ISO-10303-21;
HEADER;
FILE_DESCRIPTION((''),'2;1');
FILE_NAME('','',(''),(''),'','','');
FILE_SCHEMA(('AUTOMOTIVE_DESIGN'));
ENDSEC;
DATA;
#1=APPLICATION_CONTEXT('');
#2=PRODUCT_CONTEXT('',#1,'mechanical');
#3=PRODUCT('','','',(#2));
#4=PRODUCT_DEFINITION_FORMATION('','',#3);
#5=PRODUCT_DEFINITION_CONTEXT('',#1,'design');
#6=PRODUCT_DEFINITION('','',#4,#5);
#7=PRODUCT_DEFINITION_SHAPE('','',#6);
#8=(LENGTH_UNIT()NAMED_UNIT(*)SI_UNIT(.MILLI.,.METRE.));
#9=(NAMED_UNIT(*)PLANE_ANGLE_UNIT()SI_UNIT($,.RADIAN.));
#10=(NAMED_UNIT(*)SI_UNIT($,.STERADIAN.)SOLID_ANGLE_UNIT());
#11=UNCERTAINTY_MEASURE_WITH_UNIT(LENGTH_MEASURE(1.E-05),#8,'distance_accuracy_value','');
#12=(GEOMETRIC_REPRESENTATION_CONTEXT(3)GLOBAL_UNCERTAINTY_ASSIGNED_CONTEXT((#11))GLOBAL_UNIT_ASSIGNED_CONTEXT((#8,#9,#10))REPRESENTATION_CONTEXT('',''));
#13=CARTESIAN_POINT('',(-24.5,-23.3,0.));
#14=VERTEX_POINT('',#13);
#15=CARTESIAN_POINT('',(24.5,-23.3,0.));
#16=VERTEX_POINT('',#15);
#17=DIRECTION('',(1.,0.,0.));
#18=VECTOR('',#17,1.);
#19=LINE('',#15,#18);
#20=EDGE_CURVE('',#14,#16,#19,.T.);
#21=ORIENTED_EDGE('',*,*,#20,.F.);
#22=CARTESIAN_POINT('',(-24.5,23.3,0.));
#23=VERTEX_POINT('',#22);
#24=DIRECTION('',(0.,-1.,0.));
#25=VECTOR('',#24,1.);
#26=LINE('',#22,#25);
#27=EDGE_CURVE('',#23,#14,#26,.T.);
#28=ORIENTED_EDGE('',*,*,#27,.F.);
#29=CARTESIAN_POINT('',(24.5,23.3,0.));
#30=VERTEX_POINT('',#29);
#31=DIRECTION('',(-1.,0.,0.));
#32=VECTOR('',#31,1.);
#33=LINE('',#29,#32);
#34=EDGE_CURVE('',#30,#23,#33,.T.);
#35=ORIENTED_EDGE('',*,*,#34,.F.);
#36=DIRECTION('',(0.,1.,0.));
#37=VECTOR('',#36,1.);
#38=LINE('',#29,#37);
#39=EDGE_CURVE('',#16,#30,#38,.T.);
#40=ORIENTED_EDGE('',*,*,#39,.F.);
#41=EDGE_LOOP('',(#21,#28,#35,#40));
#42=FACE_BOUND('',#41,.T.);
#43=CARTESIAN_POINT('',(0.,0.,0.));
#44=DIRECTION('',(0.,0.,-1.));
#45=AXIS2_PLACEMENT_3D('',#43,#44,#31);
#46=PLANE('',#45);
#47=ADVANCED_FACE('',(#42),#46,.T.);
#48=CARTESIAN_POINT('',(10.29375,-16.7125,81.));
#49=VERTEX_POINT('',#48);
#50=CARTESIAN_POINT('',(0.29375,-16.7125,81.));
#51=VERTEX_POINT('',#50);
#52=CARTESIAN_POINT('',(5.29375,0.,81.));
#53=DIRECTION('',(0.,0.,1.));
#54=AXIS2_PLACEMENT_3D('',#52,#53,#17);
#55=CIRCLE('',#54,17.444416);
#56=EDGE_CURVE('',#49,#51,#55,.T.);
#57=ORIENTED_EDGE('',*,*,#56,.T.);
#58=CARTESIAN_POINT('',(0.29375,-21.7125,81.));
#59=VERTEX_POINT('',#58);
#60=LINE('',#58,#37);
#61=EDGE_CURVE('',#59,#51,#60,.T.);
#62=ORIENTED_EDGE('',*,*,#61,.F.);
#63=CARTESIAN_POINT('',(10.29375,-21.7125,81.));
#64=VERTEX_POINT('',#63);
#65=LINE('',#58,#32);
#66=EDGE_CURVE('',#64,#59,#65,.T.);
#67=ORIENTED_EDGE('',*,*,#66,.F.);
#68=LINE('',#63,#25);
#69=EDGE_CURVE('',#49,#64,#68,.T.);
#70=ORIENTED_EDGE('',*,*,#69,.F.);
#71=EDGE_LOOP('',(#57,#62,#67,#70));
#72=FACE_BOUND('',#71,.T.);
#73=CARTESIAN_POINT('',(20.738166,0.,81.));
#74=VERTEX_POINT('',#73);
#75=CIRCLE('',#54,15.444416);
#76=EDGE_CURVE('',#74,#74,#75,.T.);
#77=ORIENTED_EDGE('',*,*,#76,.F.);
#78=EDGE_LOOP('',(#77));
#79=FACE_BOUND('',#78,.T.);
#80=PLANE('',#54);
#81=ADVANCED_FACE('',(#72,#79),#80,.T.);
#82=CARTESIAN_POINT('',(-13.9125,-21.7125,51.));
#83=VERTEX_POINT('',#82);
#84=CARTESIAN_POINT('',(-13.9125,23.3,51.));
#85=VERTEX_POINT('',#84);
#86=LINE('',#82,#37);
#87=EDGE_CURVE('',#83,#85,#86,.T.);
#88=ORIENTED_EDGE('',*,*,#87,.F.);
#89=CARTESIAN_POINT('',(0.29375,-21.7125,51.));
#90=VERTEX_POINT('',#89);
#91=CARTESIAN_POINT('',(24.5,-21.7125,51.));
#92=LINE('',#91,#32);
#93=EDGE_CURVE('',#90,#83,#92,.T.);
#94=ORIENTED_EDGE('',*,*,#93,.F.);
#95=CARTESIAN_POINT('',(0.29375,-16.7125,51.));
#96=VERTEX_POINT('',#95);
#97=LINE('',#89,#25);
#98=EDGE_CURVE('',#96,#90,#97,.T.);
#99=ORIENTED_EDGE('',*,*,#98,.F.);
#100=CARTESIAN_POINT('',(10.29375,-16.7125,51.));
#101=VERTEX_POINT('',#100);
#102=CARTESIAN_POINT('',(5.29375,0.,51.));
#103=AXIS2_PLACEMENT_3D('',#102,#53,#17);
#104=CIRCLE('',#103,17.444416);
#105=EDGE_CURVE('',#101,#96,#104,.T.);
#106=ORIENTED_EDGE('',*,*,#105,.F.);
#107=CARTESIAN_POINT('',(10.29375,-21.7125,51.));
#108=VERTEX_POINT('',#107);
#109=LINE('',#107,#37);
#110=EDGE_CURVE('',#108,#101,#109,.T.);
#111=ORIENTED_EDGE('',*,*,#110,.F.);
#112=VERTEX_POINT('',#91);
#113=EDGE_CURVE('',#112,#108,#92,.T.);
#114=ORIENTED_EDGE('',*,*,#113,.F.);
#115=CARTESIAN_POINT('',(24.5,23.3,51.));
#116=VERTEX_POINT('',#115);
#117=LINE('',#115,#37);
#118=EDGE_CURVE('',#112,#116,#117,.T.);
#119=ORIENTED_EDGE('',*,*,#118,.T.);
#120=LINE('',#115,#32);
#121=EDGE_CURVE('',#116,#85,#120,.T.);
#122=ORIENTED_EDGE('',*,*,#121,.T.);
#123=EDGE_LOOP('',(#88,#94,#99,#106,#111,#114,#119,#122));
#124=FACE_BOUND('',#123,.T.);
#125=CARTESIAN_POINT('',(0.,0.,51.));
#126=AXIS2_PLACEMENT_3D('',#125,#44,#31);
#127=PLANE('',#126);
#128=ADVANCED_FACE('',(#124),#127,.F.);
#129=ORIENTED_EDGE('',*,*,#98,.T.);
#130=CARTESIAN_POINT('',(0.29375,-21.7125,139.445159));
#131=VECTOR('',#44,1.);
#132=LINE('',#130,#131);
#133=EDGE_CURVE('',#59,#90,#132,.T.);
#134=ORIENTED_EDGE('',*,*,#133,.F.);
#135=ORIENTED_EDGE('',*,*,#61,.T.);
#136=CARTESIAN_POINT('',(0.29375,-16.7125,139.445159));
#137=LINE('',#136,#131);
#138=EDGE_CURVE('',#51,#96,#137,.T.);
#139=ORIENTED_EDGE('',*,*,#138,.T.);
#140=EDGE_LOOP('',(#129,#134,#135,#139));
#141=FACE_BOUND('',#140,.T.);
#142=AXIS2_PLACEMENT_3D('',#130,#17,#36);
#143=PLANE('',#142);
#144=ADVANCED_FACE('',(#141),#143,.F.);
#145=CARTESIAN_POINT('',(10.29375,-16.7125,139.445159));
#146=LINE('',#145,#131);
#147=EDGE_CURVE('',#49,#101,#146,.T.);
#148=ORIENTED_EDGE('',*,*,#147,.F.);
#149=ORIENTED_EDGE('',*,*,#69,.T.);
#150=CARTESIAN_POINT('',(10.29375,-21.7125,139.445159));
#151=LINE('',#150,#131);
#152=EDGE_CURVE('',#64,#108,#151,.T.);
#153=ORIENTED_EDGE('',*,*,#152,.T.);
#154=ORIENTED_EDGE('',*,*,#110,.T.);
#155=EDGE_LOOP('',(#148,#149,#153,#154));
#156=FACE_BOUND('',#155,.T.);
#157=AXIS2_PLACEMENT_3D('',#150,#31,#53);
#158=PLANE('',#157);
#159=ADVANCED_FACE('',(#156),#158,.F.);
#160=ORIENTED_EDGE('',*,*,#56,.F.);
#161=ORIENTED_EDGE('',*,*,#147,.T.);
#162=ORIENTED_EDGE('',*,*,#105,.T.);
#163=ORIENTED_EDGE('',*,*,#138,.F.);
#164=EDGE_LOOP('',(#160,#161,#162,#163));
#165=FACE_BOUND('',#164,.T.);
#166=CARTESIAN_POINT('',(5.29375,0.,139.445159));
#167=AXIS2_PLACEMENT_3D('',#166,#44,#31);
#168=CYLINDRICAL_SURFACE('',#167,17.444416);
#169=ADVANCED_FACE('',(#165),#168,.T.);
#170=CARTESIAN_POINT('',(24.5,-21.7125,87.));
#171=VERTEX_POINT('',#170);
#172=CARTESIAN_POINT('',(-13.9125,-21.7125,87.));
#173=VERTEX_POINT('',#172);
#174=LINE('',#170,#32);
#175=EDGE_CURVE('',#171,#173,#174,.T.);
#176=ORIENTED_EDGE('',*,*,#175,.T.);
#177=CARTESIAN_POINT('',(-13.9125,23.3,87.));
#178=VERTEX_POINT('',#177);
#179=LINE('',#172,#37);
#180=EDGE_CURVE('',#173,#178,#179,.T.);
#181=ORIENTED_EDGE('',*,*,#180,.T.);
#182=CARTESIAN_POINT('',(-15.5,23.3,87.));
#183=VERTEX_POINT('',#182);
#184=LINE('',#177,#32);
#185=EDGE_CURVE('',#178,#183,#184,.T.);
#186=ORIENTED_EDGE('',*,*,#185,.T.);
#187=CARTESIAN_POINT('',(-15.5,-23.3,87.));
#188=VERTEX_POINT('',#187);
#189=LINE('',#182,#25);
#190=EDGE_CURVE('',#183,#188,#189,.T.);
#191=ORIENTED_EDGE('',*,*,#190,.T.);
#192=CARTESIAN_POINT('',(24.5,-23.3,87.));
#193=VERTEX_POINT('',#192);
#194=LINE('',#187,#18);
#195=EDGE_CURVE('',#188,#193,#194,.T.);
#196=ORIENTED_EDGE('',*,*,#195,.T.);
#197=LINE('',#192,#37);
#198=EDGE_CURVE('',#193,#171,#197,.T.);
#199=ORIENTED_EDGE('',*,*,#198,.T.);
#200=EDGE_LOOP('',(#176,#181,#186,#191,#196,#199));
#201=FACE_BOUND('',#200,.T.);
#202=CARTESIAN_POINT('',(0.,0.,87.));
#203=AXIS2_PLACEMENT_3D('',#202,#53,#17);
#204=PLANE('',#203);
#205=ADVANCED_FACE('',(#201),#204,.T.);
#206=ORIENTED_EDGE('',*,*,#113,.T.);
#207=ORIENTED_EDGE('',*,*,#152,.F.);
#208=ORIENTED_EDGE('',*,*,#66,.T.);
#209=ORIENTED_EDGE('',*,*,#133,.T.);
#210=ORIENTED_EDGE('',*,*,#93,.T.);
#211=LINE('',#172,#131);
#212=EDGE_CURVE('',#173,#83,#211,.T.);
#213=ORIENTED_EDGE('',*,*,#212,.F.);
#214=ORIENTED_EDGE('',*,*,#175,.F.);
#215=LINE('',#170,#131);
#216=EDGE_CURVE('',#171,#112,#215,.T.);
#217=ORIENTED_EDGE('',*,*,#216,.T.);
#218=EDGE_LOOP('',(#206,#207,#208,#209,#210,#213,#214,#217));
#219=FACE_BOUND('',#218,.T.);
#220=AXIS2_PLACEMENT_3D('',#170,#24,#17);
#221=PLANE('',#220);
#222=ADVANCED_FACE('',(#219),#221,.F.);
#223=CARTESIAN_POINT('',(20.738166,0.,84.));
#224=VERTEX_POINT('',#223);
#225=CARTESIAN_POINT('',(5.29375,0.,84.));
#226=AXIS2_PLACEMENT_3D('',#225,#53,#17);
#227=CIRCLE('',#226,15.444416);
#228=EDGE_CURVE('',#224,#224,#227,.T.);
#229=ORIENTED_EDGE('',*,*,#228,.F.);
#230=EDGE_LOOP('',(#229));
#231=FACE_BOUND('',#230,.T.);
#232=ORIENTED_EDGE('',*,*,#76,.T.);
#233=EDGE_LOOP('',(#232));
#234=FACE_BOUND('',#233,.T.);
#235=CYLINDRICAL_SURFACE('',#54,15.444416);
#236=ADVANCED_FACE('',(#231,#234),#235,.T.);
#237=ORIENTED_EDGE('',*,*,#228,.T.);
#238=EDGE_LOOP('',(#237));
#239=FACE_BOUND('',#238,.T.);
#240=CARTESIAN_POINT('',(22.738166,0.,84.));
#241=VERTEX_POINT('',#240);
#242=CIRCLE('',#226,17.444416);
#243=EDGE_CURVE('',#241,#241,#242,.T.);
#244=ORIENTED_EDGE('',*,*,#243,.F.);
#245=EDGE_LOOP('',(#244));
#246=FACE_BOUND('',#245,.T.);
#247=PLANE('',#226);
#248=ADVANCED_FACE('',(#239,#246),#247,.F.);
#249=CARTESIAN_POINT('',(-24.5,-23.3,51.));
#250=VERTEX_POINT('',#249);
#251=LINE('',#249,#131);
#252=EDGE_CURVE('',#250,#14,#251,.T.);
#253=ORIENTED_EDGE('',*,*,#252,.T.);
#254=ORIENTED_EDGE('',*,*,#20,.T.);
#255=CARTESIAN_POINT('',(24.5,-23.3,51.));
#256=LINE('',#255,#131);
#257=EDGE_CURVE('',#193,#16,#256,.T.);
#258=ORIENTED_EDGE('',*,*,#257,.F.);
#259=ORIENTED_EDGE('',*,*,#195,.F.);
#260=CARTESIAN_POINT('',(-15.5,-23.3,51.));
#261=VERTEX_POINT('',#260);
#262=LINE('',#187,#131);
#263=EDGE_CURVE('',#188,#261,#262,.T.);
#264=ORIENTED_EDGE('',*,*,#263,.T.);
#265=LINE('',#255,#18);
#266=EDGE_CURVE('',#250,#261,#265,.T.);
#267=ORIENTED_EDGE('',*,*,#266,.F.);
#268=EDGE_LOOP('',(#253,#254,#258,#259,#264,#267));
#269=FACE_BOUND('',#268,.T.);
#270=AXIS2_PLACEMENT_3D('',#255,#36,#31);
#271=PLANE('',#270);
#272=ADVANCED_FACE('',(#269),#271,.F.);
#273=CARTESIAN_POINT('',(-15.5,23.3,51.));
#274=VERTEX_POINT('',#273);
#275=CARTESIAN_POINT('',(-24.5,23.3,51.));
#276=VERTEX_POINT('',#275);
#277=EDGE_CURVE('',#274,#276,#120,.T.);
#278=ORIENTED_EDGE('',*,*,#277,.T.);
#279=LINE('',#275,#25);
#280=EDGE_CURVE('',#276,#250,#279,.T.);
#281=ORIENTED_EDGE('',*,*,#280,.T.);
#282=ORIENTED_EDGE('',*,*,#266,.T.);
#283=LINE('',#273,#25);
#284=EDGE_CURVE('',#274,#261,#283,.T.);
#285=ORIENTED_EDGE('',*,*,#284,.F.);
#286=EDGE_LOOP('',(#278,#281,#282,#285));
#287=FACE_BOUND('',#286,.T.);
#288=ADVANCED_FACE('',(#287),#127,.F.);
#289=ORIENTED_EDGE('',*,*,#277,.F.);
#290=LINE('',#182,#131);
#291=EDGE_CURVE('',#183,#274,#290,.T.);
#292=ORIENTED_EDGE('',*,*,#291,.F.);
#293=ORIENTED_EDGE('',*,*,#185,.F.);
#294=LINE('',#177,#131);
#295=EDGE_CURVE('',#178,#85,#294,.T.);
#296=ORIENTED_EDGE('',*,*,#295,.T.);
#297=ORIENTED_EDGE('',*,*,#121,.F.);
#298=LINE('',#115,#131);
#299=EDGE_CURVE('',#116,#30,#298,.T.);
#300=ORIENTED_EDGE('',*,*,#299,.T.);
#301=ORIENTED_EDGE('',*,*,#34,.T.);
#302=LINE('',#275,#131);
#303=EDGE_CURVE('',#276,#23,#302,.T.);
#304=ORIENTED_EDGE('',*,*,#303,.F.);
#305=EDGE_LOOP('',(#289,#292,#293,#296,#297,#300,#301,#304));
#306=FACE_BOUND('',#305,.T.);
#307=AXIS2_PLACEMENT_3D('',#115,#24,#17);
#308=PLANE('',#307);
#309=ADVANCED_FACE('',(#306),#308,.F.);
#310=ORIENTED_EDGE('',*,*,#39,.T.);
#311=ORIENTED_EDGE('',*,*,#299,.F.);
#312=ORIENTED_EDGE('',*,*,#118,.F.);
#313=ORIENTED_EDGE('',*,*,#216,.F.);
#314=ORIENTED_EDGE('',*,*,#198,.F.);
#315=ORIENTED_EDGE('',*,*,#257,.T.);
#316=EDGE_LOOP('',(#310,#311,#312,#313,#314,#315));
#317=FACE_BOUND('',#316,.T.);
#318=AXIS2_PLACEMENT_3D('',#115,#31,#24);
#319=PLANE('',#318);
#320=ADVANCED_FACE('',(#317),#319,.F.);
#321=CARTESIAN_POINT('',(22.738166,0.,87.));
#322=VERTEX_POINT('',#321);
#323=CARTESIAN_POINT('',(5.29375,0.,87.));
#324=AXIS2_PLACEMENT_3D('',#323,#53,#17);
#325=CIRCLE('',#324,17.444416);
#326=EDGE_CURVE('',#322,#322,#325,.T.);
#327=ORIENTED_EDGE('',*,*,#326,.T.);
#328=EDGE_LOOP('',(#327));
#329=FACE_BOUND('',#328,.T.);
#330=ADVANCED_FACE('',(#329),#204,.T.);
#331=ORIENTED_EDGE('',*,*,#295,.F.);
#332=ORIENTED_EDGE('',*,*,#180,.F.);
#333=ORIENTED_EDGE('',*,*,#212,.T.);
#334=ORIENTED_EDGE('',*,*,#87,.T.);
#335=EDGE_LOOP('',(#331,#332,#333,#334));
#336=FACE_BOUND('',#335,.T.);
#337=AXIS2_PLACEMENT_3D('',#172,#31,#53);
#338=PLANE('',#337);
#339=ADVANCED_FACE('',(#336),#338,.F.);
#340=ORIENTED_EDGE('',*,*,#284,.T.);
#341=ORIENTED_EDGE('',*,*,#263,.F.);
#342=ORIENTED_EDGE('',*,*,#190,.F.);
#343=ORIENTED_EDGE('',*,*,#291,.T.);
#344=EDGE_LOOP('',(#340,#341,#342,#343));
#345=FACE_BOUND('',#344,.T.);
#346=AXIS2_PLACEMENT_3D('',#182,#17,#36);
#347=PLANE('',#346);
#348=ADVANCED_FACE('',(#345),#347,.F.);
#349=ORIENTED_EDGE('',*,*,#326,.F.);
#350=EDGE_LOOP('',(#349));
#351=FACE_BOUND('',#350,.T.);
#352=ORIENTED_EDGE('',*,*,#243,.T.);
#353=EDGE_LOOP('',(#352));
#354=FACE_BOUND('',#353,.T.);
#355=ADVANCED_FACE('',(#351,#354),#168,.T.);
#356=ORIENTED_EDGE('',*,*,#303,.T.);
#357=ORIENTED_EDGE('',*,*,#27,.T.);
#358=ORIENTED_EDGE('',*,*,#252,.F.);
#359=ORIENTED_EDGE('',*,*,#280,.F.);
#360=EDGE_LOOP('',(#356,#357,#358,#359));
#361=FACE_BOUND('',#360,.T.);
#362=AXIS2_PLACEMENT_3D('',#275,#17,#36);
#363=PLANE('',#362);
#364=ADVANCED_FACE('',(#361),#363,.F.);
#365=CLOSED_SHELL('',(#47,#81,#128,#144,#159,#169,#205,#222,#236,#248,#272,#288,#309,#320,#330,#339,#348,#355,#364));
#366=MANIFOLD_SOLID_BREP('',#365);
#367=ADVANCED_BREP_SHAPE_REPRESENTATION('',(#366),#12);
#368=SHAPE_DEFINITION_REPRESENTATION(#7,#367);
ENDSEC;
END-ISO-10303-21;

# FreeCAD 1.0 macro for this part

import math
import FreeCAD as App
import Part
import Sketcher
from FreeCAD import Vector


def add_polygon(sketch, points):
    """Adds a closed chain of lines whose ends are joined by coincident constraints."""
    first, n = sketch.GeometryCount, len(points)
    for a, b in zip(points, points[1:] + points[:1]):
        sketch.addGeometry(Part.LineSegment(App.Vector(*a, 0), App.Vector(*b, 0)), False)
    for i in range(n):
        sketch.addConstraint(Sketcher.Constraint("Coincident", first + i, 2, first + (i + 1) % n, 1))

doc = App.newDocument("Part")
body = doc.addObject("PartDesign::Body", "Body")

# Sketch on XY plane
sketch1 = doc.addObject("Sketcher::SketchObject", "Sketch")
body.addObject(sketch1)
sketch1.AttachmentSupport = (doc.XY_Plane, [""])
sketch1.MapMode = "FlatFace"
add_polygon(sketch1, [(-24, 23), (-24, -23), (24, -23), (24, 23)])  # lines 0-3
sketch1.addConstraint([
    Sketcher.Constraint("Vertical", 0),
    Sketcher.Constraint("Horizontal", 1),
    Sketcher.Constraint("Vertical", 2),
    Sketcher.Constraint("Horizontal", 3),
    Sketcher.Constraint("Symmetric", 0, 2, 2, 2, -1, 1),
    Sketcher.Constraint("DistanceX", 1, 1, 1, 2, 49.0),
    Sketcher.Constraint("DistanceY", 0, 2, 0, 1, 46.6),
])
pad1 = doc.addObject("PartDesign::Pad", "Pad")
body.addObject(pad1)
pad1.Profile = sketch1
pad1.Length = 51

# Sketch on XY plane
sketch2 = doc.addObject("Sketcher::SketchObject", "Sketch001")
body.addObject(sketch2)
sketch2.AttachmentSupport = (doc.XY_Plane, [""])
sketch2.MapMode = "FlatFace"
sketch2.AttachmentOffset = App.Placement(Vector(0, 0, 51), App.Rotation())
add_polygon(sketch2, [(24.5, -23.3), (24.5, -21.7), (-13.9, -21.7), (-13.9, 23.3), (-15.5, 23.3), (-15.5, -23.3)])  # lines 0-5
sketch2.addConstraint([
    Sketcher.Constraint("Vertical", 0),
    Sketcher.Constraint("Horizontal", 1),
    Sketcher.Constraint("Vertical", 2),
    Sketcher.Constraint("Horizontal", 3),
    Sketcher.Constraint("Vertical", 4),
    Sketcher.Constraint("Horizontal", 5),
    Sketcher.Constraint("Equal", 3, 0),
    Sketcher.Constraint("DistanceX", 5, 1, 5, 2, 40.0),
    Sketcher.Constraint("DistanceY", 4, 2, 4, 1, 46.6),
    Sketcher.Constraint("DistanceX", -1, 1, 0, 2, 24.5),
    Sketcher.Constraint("DistanceY", -1, 1, 2, 2, 23.3),
    Sketcher.Constraint("DistanceX", 1, 2, 1, 1, 38.4125),
])
pad2 = doc.addObject("PartDesign::Pad", "Pad001")
body.addObject(pad2)
pad2.Profile = sketch2
pad2.Length = 36

# Sketch on XY plane
sketch3 = doc.addObject("Sketcher::SketchObject", "Sketch002")
body.addObject(sketch3)
sketch3.AttachmentSupport = (doc.XY_Plane, [""])
sketch3.MapMode = "FlatFace"
sketch3.AttachmentOffset = App.Placement(Vector(0, 0, 51), App.Rotation())
sketch3.addGeometry([
    Part.LineSegment(Vector(0, -17, 0), Vector(0, -22, 0)),
    Part.LineSegment(Vector(0, -22, 0), Vector(10, -22, 0)),
    Part.LineSegment(Vector(10, -22, 0), Vector(10, -17, 0)),
    Part.ArcOfCircle(Part.Circle(Vector(5, 0, 0), Vector(0, 0, 1), 17), math.radians(-73), math.radians(253)),
], False)
sketch3.addConstraint([
    Sketcher.Constraint("Coincident", 0, 2, 1, 1),
    Sketcher.Constraint("Coincident", 1, 2, 2, 1),
    Sketcher.Constraint("Coincident", 2, 2, 3, 1),
    Sketcher.Constraint("Coincident", 3, 2, 0, 1),
    Sketcher.Constraint("Vertical", 0),
    Sketcher.Constraint("Horizontal", 1),
    Sketcher.Constraint("Vertical", 2),
    Sketcher.Constraint("PointOnObject", 3, 3, -1),
    Sketcher.Constraint("Horizontal", 2, 2, 3, 2),
    Sketcher.Constraint("DistanceX", 1, 1, 1, 2, 10.0),
    Sketcher.Constraint("DistanceY", 0, 2, 0, 1, 5.0),
    Sketcher.Constraint("Radius", 3, 17.444416),
    Sketcher.Constraint("DistanceX", -1, 1, 3, 3, 5.29375),
])
pad3 = doc.addObject("PartDesign::Pad", "Pad002")
body.addObject(pad3)
pad3.Profile = sketch3
pad3.Length = 36

# Sketch on XY plane
sketch4 = doc.addObject("Sketcher::SketchObject", "Sketch003")
body.addObject(sketch4)
sketch4.AttachmentSupport = (doc.XY_Plane, [""])
sketch4.MapMode = "FlatFace"
sketch4.AttachmentOffset = App.Placement(Vector(0, 0, 84), App.Rotation())
sketch4.addGeometry([
    Part.Circle(Vector(5, 0, 0), Vector(0, 0, 1), 17),
    Part.Circle(Vector(5, 0, 0), Vector(0, 0, 1), 15),
], False)
sketch4.addConstraint([
    Sketcher.Constraint("Coincident", 1, 3, 0, 3),
    Sketcher.Constraint("PointOnObject", 0, 3, -1),
    Sketcher.Constraint("Diameter", 0, 34.888832),
    Sketcher.Constraint("Diameter", 1, 30.888832),
    Sketcher.Constraint("DistanceX", -1, 1, 0, 3, 5.29375),
])
pocket1 = doc.addObject("PartDesign::Pocket", "Pocket")
body.addObject(pocket1)
pocket1.Profile = sketch4
pocket1.Length = 3

# Sketch on XY plane
sketch5 = doc.addObject("Sketcher::SketchObject", "Sketch004")
body.addObject(sketch5)
sketch5.AttachmentSupport = (doc.XY_Plane, [""])
sketch5.MapMode = "FlatFace"
sketch5.AttachmentOffset = App.Placement(Vector(0, 0, 87), App.Rotation())
sketch5.addGeometry([
    Part.LineSegment(Vector(0, -22, 0), Vector(10, -22, 0)),
    Part.LineSegment(Vector(10, -22, 0), Vector(10, -17, 0)),
    Part.ArcOfCircle(Part.Circle(Vector(5, 0, 0), Vector(0, 0, 1), 17), math.radians(-107), math.radians(-73)),
    Part.LineSegment(Vector(0, -17, 0), Vector(0, -22, 0)),
], False)
sketch5.addConstraint([
    Sketcher.Constraint("Coincident", 0, 2, 1, 1),
    Sketcher.Constraint("Coincident", 1, 2, 2, 2),
    Sketcher.Constraint("Coincident", 2, 1, 3, 1),
    Sketcher.Constraint("Coincident", 3, 2, 0, 1),
    Sketcher.Constraint("Horizontal", 0),
    Sketcher.Constraint("Vertical", 1),
    Sketcher.Constraint("Vertical", 3),
    Sketcher.Constraint("PointOnObject", 2, 3, -1),
    Sketcher.Constraint("Horizontal", 1, 2, 2, 1),
    Sketcher.Constraint("DistanceX", 0, 1, 0, 2, 10.0),
    Sketcher.Constraint("DistanceY", 1, 1, 1, 2, 5.0),
    Sketcher.Constraint("Radius", 2, 17.444416),
    Sketcher.Constraint("DistanceX", -1, 1, 2, 3, 5.29375),
])
pocket2 = doc.addObject("PartDesign::Pocket", "Pocket001")
body.addObject(pocket2)
pocket2.Profile = sketch5
pocket2.Length = 6

doc.recompute()
